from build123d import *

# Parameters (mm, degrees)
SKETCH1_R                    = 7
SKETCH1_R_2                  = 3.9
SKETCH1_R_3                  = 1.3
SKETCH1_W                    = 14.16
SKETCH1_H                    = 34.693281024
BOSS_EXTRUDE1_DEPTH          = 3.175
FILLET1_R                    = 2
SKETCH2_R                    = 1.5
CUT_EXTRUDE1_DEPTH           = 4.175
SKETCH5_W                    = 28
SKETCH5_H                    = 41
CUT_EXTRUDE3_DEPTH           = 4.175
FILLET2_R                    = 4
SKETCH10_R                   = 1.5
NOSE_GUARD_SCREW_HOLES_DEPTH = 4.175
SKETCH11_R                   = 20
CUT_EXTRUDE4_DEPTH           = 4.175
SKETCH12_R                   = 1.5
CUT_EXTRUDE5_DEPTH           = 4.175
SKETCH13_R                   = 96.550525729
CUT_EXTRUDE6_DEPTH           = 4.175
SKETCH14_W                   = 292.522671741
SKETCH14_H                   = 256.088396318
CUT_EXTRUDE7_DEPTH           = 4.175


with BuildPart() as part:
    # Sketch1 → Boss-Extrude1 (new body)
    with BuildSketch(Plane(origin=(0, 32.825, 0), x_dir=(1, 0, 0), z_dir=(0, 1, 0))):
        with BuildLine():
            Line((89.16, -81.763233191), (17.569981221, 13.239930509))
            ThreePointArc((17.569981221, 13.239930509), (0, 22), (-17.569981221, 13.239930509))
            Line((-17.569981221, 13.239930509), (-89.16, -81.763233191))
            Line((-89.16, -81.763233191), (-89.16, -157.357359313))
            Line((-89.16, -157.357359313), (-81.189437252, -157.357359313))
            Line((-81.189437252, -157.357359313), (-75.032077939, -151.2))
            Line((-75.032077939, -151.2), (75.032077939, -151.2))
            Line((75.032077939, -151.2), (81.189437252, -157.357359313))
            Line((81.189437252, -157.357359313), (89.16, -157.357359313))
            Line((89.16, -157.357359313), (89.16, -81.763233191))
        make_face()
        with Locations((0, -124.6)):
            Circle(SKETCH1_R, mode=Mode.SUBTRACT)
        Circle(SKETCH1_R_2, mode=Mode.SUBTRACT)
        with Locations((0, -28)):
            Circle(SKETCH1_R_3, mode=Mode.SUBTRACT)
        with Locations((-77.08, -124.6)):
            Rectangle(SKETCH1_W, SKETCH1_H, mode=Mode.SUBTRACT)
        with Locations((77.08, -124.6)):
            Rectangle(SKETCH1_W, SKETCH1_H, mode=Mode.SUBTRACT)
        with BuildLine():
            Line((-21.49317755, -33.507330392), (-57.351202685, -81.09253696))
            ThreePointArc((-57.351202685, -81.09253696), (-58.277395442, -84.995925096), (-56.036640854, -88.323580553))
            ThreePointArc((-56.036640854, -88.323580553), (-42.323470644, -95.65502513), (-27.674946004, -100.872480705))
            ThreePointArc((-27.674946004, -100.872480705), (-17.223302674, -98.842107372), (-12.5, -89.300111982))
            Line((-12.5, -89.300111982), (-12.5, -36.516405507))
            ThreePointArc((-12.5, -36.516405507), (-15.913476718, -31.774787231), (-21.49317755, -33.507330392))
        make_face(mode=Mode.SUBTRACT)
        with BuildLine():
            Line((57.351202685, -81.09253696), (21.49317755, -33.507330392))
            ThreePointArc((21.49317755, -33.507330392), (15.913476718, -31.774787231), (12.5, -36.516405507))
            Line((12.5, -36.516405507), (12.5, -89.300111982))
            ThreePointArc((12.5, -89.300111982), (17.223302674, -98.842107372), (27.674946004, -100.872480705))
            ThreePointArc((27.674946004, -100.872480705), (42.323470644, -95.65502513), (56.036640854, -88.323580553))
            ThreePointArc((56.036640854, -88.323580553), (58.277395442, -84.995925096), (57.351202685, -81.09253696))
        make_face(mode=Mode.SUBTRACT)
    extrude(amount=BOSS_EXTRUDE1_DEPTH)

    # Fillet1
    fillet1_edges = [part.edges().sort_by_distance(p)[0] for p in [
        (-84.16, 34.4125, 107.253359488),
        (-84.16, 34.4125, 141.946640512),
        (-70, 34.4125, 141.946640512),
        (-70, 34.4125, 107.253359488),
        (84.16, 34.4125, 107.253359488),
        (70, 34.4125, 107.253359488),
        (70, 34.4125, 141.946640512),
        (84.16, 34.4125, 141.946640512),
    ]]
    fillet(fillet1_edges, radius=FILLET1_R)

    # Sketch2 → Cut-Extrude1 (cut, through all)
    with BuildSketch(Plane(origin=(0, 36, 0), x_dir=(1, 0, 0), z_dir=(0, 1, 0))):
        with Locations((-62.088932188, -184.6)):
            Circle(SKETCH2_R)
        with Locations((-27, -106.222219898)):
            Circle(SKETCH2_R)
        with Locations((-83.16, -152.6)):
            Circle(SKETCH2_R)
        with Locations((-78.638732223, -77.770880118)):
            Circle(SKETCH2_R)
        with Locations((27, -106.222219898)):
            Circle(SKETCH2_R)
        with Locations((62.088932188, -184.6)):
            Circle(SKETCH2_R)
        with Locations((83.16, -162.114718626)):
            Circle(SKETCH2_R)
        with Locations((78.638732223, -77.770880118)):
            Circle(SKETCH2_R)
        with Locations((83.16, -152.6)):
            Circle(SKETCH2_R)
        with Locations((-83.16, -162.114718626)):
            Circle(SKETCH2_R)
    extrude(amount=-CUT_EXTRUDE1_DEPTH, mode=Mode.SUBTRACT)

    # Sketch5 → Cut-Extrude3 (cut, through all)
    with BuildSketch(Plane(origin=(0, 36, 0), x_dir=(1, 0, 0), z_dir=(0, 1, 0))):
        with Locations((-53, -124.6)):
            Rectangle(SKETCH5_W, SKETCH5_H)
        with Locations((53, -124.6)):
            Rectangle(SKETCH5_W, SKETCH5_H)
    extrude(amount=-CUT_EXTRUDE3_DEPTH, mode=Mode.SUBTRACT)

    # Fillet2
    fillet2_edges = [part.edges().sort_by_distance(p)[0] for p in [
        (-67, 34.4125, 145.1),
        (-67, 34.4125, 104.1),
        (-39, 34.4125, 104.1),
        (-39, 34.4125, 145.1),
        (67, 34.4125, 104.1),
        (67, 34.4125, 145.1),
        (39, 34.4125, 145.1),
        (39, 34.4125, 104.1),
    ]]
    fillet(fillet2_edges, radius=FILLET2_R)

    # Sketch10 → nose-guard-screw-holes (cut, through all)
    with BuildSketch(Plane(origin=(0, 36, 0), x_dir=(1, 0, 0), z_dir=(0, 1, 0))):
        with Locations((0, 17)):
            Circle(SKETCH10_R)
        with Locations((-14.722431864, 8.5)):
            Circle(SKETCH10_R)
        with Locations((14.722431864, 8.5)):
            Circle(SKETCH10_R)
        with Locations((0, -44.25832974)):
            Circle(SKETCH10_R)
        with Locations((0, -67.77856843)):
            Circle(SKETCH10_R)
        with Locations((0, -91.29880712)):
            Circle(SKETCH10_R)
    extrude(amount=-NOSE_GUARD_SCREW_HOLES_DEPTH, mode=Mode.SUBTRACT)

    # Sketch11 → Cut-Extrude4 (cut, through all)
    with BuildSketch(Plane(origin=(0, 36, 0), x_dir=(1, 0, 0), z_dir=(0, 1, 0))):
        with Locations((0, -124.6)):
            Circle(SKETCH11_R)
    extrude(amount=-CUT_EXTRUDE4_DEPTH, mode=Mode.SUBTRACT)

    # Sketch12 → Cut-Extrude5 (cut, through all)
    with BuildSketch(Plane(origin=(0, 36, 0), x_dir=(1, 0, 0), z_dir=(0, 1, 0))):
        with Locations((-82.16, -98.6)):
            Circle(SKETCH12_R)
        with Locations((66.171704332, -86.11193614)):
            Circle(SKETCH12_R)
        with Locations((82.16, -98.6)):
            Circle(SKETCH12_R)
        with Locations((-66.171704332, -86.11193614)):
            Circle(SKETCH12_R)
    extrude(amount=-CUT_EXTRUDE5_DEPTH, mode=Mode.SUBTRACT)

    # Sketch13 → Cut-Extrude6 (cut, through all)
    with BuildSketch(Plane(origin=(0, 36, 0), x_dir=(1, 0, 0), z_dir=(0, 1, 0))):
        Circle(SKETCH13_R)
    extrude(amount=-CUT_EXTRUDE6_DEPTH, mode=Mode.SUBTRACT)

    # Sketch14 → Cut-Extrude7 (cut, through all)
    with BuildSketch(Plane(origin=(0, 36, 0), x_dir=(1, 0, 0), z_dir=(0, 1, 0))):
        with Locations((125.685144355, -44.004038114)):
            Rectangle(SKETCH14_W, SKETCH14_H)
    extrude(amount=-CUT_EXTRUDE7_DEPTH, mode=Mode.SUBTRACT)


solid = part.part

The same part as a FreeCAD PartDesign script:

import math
import FreeCAD as App
import Part
import Sketcher
Q = App.Units.Quantity


def edges_at(feature, points):
    """Names of the edges that pass closest to the given points."""
    edges = feature.Shape.Edges
    near = lambda p: min(range(len(edges)), key=lambda i: edges[i].distToShape(Part.Vertex(*p))[0])
    return sorted({f"Edge{near(p) + 1}" for p in points})

doc = App.newDocument("Part")
params = doc.addObject("Spreadsheet::Sheet", "Params")
for row, (alias, value) in enumerate([
    ("sketch1_diameter", "14 mm"),
    ("sketch1_radius", "22 mm"),
    ("sketch1_radius2", "5 mm"),
    ("sketch1_radius3", "12 mm"),
    ("sketch1_diameter2", "2.6 mm"),
    ("pad1_length", "3.175 mm"),
    ("fillet_radius", "2 mm"),
    ("sketch2_diameter", "3 mm"),
    ("sketch3_width", "28 mm"),
    ("sketch3_height", "41 mm"),
    ("fillet2_radius", "4 mm"),
    ("sketch4_diameter", "3 mm"),
    ("sketch5_diameter", "40 mm"),
    ("sketch6_diameter", "3 mm"),
], start=1):
    params.set(f"A{row}", alias)
    params.set(f"B{row}", "=" + value)
    params.setAlias(f"B{row}", alias)

body = doc.addObject("PartDesign::Body", "Body")

sketch1 = body.newObject("Sketcher::SketchObject", "Sketch")
sketch1.AttachmentSupport = (doc.getObject("XZ_Plane"), [""])
sketch1.MapMode = "FlatFace"
sketch1.AttachmentOffset = App.Placement(App.Vector(0, 0, -32.825), App.Rotation())
sketch1.addGeometry([
    Part.LineSegment(App.Vector(89.2, 81.8, 0), App.Vector(17.6, -13.2, 0)),
    Part.ArcOfCircle(Part.Circle(App.Vector(0, 0, 0), App.Vector(0, 0, 1), 22), math.radians(-143), math.radians(-37)),
    Part.LineSegment(App.Vector(-17.6, -13.2, 0), App.Vector(-89.2, 81.8, 0)),
    Part.LineSegment(App.Vector(-89.2, 81.8, 0), App.Vector(-89.2, 157.4, 0)),
    Part.LineSegment(App.Vector(-89.2, 157.4, 0), App.Vector(-81.2, 157.4, 0)),
    Part.LineSegment(App.Vector(-81.2, 157.4, 0), App.Vector(-75, 151.2, 0)),
    Part.LineSegment(App.Vector(-75, 151.2, 0), App.Vector(75, 151.2, 0)),
    Part.LineSegment(App.Vector(75, 151.2, 0), App.Vector(81.2, 157.4, 0)),
    Part.LineSegment(App.Vector(81.2, 157.4, 0), App.Vector(89.2, 157.4, 0)),
    Part.LineSegment(App.Vector(89.2, 157.4, 0), App.Vector(89.2, 81.8, 0)),
    Part.LineSegment(App.Vector(-70, 141.9, 0), App.Vector(-84.2, 141.9, 0)),
    Part.LineSegment(App.Vector(-84.2, 141.9, 0), App.Vector(-84.2, 107.3, 0)),
    Part.LineSegment(App.Vector(-84.2, 107.3, 0), App.Vector(-70, 107.3, 0)),
    Part.LineSegment(App.Vector(-70, 107.3, 0), App.Vector(-70, 141.9, 0)),
    Part.Circle(App.Vector(0, 124.6, 0), App.Vector(0, 0, 1), 7),
    Part.LineSegment(App.Vector(84.2, 141.9, 0), App.Vector(70, 141.9, 0)),
    Part.LineSegment(App.Vector(70, 141.9, 0), App.Vector(70, 107.3, 0)),
    Part.LineSegment(App.Vector(70, 107.3, 0), App.Vector(84.2, 107.3, 0)),
    Part.LineSegment(App.Vector(84.2, 107.3, 0), App.Vector(84.2, 141.9, 0)),
    Part.LineSegment(App.Vector(-57.4, 81.1, 0), App.Vector(-21.5, 33.5, 0)),
    Part.ArcOfCircle(Part.Circle(App.Vector(-17.5, 36.5, 0), App.Vector(0, 0, 1), 5), math.radians(-143), math.radians(0)),
    Part.LineSegment(App.Vector(-12.5, 36.5, 0), App.Vector(-12.5, 89.3, 0)),
    Part.ArcOfCircle(Part.Circle(App.Vector(-24.5, 89.3, 0), App.Vector(0, 0, 1), 12), math.radians(0), math.radians(105)),
    Part.ArcOfCircle(Part.Circle(App.Vector(0, 0, 0), App.Vector(0, 0, 1), 104.6), math.radians(105.34), math.radians(122.39)),
    Part.ArcOfCircle(Part.Circle(App.Vector(-53.4, 84.1, 0), App.Vector(0, 0, 1), 5), math.radians(122), math.radians(217)),
    Part.LineSegment(App.Vector(21.5, 33.5, 0), App.Vector(57.4, 81.1, 0)),
    Part.ArcOfCircle(Part.Circle(App.Vector(53.4, 84.1, 0), App.Vector(0, 0, 1), 5), math.radians(-37), math.radians(58)),
    Part.ArcOfCircle(Part.Circle(App.Vector(0, 0, 0), App.Vector(0, 0, 1), 104.6), math.radians(57.61), math.radians(74.66)),
    Part.ArcOfCircle(Part.Circle(App.Vector(24.5, 89.3, 0), App.Vector(0, 0, 1), 12), math.radians(75), math.radians(180)),
    Part.LineSegment(App.Vector(12.5, 89.3, 0), App.Vector(12.5, 36.5, 0)),
    Part.ArcOfCircle(Part.Circle(App.Vector(17.5, 36.5, 0), App.Vector(0, 0, 1), 5), math.radians(180), math.radians(323)),
    Part.Circle(App.Vector(0, 28, 0), App.Vector(0, 0, 1), 1.3),
    Part.Circle(App.Vector(0, 0, 0), App.Vector(0, 0, 1), 3.9),
], False)
sketch1.addConstraint([
    Sketcher.Constraint("Tangent", 0, 2, 1, 2),
    Sketcher.Constraint("Tangent", 1, 1, 2, 1),
    Sketcher.Constraint("Coincident", 2, 2, 3, 1),
    Sketcher.Constraint("Coincident", 3, 2, 4, 1),
    Sketcher.Constraint("Coincident", 4, 2, 5, 1),
    Sketcher.Constraint("Coincident", 5, 2, 6, 1),
    Sketcher.Constraint("Coincident", 6, 2, 7, 1),
    Sketcher.Constraint("Coincident", 7, 2, 8, 1),
    Sketcher.Constraint("Coincident", 8, 2, 9, 1),
    Sketcher.Constraint("Coincident", 9, 2, 0, 1),
    Sketcher.Constraint("Coincident", 10, 2, 11, 1),
    Sketcher.Constraint("Coincident", 11, 2, 12, 1),
    Sketcher.Constraint("Coincident", 12, 2, 13, 1),
    Sketcher.Constraint("Coincident", 13, 2, 10, 1),
    Sketcher.Constraint("Coincident", 15, 2, 16, 1),
    Sketcher.Constraint("Coincident", 16, 2, 17, 1),
    Sketcher.Constraint("Coincident", 17, 2, 18, 1),
    Sketcher.Constraint("Coincident", 18, 2, 15, 1),
    Sketcher.Constraint("Tangent", 19, 2, 20, 1),
    Sketcher.Constraint("Tangent", 20, 2, 21, 1),
    Sketcher.Constraint("Tangent", 21, 2, 22, 1),
    Sketcher.Constraint("Tangent", 22, 2, 23, 1),
    Sketcher.Constraint("Tangent", 23, 2, 24, 1),
    Sketcher.Constraint("Tangent", 24, 2, 19, 1),
    Sketcher.Constraint("Tangent", 25, 2, 26, 1),
    Sketcher.Constraint("Tangent", 26, 2, 27, 1),
    Sketcher.Constraint("Tangent", 27, 2, 28, 1),
    Sketcher.Constraint("Tangent", 28, 2, 29, 1),
    Sketcher.Constraint("Tangent", 29, 2, 30, 1),
    Sketcher.Constraint("Tangent", 30, 2, 25, 1),
    Sketcher.Constraint("Vertical", 3),
    Sketcher.Constraint("Horizontal", 4),
    Sketcher.Constraint("Horizontal", 6),
    Sketcher.Constraint("Horizontal", 8),
    Sketcher.Constraint("Vertical", 9),
    Sketcher.Constraint("Horizontal", 10),
    Sketcher.Constraint("Vertical", 11),
    Sketcher.Constraint("Horizontal", 12),
    Sketcher.Constraint("Vertical", 13),
    Sketcher.Constraint("Horizontal", 15),
    Sketcher.Constraint("Vertical", 16),
    Sketcher.Constraint("Horizontal", 17),
    Sketcher.Constraint("Vertical", 18),
    Sketcher.Constraint("Vertical", 21),
    Sketcher.Constraint("Vertical", 29),
    Sketcher.Constraint("Coincident", 1, 3, -1, 1),
    Sketcher.Constraint("Coincident", 23, 3, -1, 1),
    Sketcher.Constraint("Coincident", 27, 3, -1, 1),
    Sketcher.Constraint("Coincident", 32, 3, -1, 1),
    Sketcher.Constraint("Equal", 20, 24),
    Sketcher.Constraint("Equal", 24, 26),
    Sketcher.Constraint("Equal", 23, 27),
    Sketcher.Constraint("Equal", 22, 28),
    Sketcher.Constraint("Equal", 26, 30),
    Sketcher.Constraint("Symmetric", 20, 3, 30, 3, -2),
    Sketcher.Constraint("Symmetric", 4, 2, 7, 2, -2),
    Sketcher.Constraint("Symmetric", 2, 2, 9, 2, -2),
    Sketcher.Constraint("Symmetric", 13, 2, 15, 2, -2),
    Sketcher.Constraint("Symmetric", 11, 2, 17, 2, -2),
    Sketcher.Constraint("PointOnObject", 14, 3, -2),
    Sketcher.Constraint("PointOnObject", 31, 3, -2),
    Sketcher.Constraint("Perpendicular", 5, 7),
    Sketcher.Constraint("Parallel", 2, 19),
    Sketcher.Constraint("Parallel", 0, 25),
    Sketcher.Constraint("Equal", 5, 7),
    Sketcher.Constraint("Diameter", 14, Q("14 mm")),
    Sketcher.Constraint("Radius", 1, Q("22 mm")),
    Sketcher.Constraint("Radius", 20, Q("5 mm")),
    Sketcher.Constraint("Radius", 22, Q("12 mm")),
    Sketcher.Constraint("Diameter", 31, Q("2.6 mm")),
    Sketcher.Constraint("Diameter", 32, Q("7.8 mm")),
    Sketcher.Constraint("Radius", 23, Q("104.6 mm")),
    Sketcher.Constraint("Angle", 0, Q("-127 deg")),
    Sketcher.Constraint("DistanceY", -1, 1, 31, 3, Q("28 mm")),
    Sketcher.Constraint("DistanceX", 12, 2, -1, 1, Q("70 mm")),
    Sketcher.Constraint("DistanceX", 22, 3, 28, 3, Q("49 mm")),
    Sketcher.Constraint("DistanceX", 3, 2, 10, 2, Q("5 mm")),
    Sketcher.Constraint("DistanceX", 10, 2, 10, 1, Q("14.16 mm")),
    Sketcher.Constraint("DistanceY", -1, 1, 14, 3, Q("124.6 mm")),
    Sketcher.Constraint("DistanceY", -1, 1, 5, 2, Q("151.2 mm")),
    Sketcher.Constraint("DistanceY", 11, 2, 4, 2, Q("50.104 mm")),
    Sketcher.Constraint("DistanceY", 11, 2, 11, 1, Q("34.693281 mm")),
    Sketcher.Constraint("DistanceY", 24, 3, 22, 3, Q("5.1985 mm")),
    Sketcher.Constraint("Distance", 5, Q("8.707821 mm")),
    Sketcher.Constraint("DistanceX", 4, 1, 4, 2, Q("7.970563 mm")),
])
sketch1.setExpression("Constraints[65]", "Params.sketch1_diameter")
sketch1.setExpression("Constraints[66]", "Params.sketch1_radius")
sketch1.setExpression("Constraints[67]", "Params.sketch1_radius2")
sketch1.setExpression("Constraints[68]", "Params.sketch1_radius3")
sketch1.setExpression("Constraints[69]", "Params.sketch1_diameter2")
pad1 = body.newObject("PartDesign::Pad", "Pad")
pad1.Profile = sketch1
pad1.setExpression("Length", "Params.pad1_length")
pad1.Reversed = True
doc.recompute()

fillet = body.newObject("PartDesign::Fillet", "Fillet")
fillet.Base = (pad1, edges_at(pad1, [
    (-84.16, 34.413, 107.253),
    (-84.16, 34.413, 141.947),
    (-70, 34.413, 141.947),
    (-70, 34.413, 107.253),
    (84.16, 34.413, 107.253),
    (70, 34.413, 107.253),
    (70, 34.413, 141.947),
    (84.16, 34.413, 141.947),
]))
fillet.setExpression("Radius", "Params.fillet_radius")

sketch2 = body.newObject("Sketcher::SketchObject", "Sketch001")
sketch2.AttachmentSupport = (doc.getObject("XZ_Plane"), [""])
sketch2.MapMode = "FlatFace"
sketch2.AttachmentOffset = App.Placement(App.Vector(0, 0, -36), App.Rotation())
sketch2.addGeometry([
    Part.Circle(App.Vector(-62.1, 184.6, 0), App.Vector(0, 0, 1), 1.5),
    Part.Circle(App.Vector(-27, 106.2, 0), App.Vector(0, 0, 1), 1.5),
    Part.Circle(App.Vector(-83.2, 152.6, 0), App.Vector(0, 0, 1), 1.5),
    Part.Circle(App.Vector(-78.6, 77.8, 0), App.Vector(0, 0, 1), 1.5),
    Part.Circle(App.Vector(27, 106.2, 0), App.Vector(0, 0, 1), 1.5),
    Part.Circle(App.Vector(62.1, 184.6, 0), App.Vector(0, 0, 1), 1.5),
    Part.Circle(App.Vector(83.2, 162.1, 0), App.Vector(0, 0, 1), 1.5),
    Part.Circle(App.Vector(78.6, 77.8, 0), App.Vector(0, 0, 1), 1.5),
    Part.Circle(App.Vector(83.2, 152.6, 0), App.Vector(0, 0, 1), 1.5),
    Part.Circle(App.Vector(-83.2, 162.1, 0), App.Vector(0, 0, 1), 1.5),
], False)
sketch2.addConstraint([
    Sketcher.Constraint("Equal", 0, 1),
    Sketcher.Constraint("Equal", 1, 2),
    Sketcher.Constraint("Equal", 2, 3),
    Sketcher.Constraint("Equal", 3, 4),
    Sketcher.Constraint("Equal", 4, 5),
    Sketcher.Constraint("Equal", 5, 6),
    Sketcher.Constraint("Equal", 6, 7),
    Sketcher.Constraint("Equal", 7, 8),
    Sketcher.Constraint("Equal", 8, 9),
    Sketcher.Constraint("Symmetric", 1, 3, 4, 3, -2),
    Sketcher.Constraint("Symmetric", 0, 3, 5, 3, -2),
    Sketcher.Constraint("Symmetric", 3, 3, 7, 3, -2),
    Sketcher.Constraint("Symmetric", 2, 3, 8, 3, -2),
    Sketcher.Constraint("Symmetric", 6, 3, 9, 3, -2),
    Sketcher.Constraint("Vertical", 6, 3, 8, 3),
    Sketcher.Constraint("Diameter", 0, Q("3 mm")),
    Sketcher.Constraint("DistanceX", 1, 3, -1, 1, Q("27 mm")),
    Sketcher.Constraint("DistanceY", 2, 3, 0, 3, Q("32 mm")),
    Sketcher.Constraint("DistanceY", -1, 1, 0, 3, Q("184.6 mm")),
    Sketcher.Constraint("DistanceX", 2, 3, -1, 1, Q("83.16 mm")),
    Sketcher.Constraint("DistanceX", 3, 3, 0, 3, Q("16.5498 mm")),
    Sketcher.Constraint("DistanceY", 4, 3, 6, 3, Q("55.892499 mm")),
    Sketcher.Constraint("DistanceY", -1, 1, 1, 3, Q("106.22222 mm")),
    Sketcher.Constraint("DistanceY", -1, 1, 3, 3, Q("77.77088 mm")),
    Sketcher.Constraint("DistanceX", 0, 3, -1, 1, Q("62.088932 mm")),
])
sketch2.setExpression("Constraints[15]", "Params.sketch2_diameter")
pocket1 = body.newObject("PartDesign::Pocket", "Pocket")
pocket1.Profile = sketch2
pocket1.Type = "ThroughAll"
pocket1.Reversed = True

sketch3 = body.newObject("Sketcher::SketchObject", "Sketch002")
sketch3.AttachmentSupport = (doc.getObject("XZ_Plane"), [""])
sketch3.MapMode = "FlatFace"
sketch3.AttachmentOffset = App.Placement(App.Vector(0, 0, -36), App.Rotation())
sketch3.addGeometry([
    Part.LineSegment(App.Vector(-67, 104, 0), App.Vector(-67, 145, 0)),
    Part.LineSegment(App.Vector(-67, 145, 0), App.Vector(-39, 145, 0)),
    Part.LineSegment(App.Vector(-39, 145, 0), App.Vector(-39, 104, 0)),
    Part.LineSegment(App.Vector(-39, 104, 0), App.Vector(-67, 104, 0)),
    Part.LineSegment(App.Vector(39, 104, 0), App.Vector(39, 145, 0)),
    Part.LineSegment(App.Vector(39, 145, 0), App.Vector(67, 145, 0)),
    Part.LineSegment(App.Vector(67, 145, 0), App.Vector(67, 104, 0)),
    Part.LineSegment(App.Vector(67, 104, 0), App.Vector(39, 104, 0)),
], False)
sketch3.addConstraint([
    Sketcher.Constraint("Coincident", 0, 2, 1, 1),
    Sketcher.Constraint("Coincident", 1, 2, 2, 1),
    Sketcher.Constraint("Coincident", 2, 2, 3, 1),
    Sketcher.Constraint("Coincident", 3, 2, 0, 1),
    Sketcher.Constraint("Coincident", 4, 2, 5, 1),
    Sketcher.Constraint("Coincident", 5, 2, 6, 1),
    Sketcher.Constraint("Coincident", 6, 2, 7, 1),
    Sketcher.Constraint("Coincident", 7, 2, 4, 1),
    Sketcher.Constraint("Vertical", 0),
    Sketcher.Constraint("Horizontal", 1),
    Sketcher.Constraint("Vertical", 2),
    Sketcher.Constraint("Horizontal", 3),
    Sketcher.Constraint("Vertical", 4),
    Sketcher.Constraint("Horizontal", 5),
    Sketcher.Constraint("Vertical", 6),
    Sketcher.Constraint("Horizontal", 7),
    Sketcher.Constraint("Symmetric", 1, 2, 4, 2, -2),
    Sketcher.Constraint("Symmetric", 3, 2, 6, 2, -2),
    Sketcher.Constraint("DistanceX", 1, 1, 1, 2, Q("28 mm")),
    Sketcher.Constraint("DistanceY", 0, 1, 0, 2, Q("41 mm")),
    Sketcher.Constraint("DistanceX", 0, 2, -1, 1, Q("67 mm")),
    Sketcher.Constraint("DistanceY", -1, 1, 0, 2, Q("145.1 mm")),
])
sketch3.setExpression("Constraints[18]", "Params.sketch3_width")
sketch3.setExpression("Constraints[19]", "Params.sketch3_height")
pocket2 = body.newObject("PartDesign::Pocket", "Pocket001")
pocket2.Profile = sketch3
pocket2.Type = "ThroughAll"
pocket2.Reversed = True
doc.recompute()

fillet2 = body.newObject("PartDesign::Fillet", "Fillet001")
fillet2.Base = (pocket2, edges_at(pocket2, [
    (-67, 34.413, 145.1),
    (-67, 34.413, 104.1),
    (-39, 34.413, 104.1),
    (-39, 34.413, 145.1),
    (67, 34.413, 104.1),
    (67, 34.413, 145.1),
    (39, 34.413, 145.1),
    (39, 34.413, 104.1),
]))
fillet2.setExpression("Radius", "Params.fillet2_radius")

sketch4 = body.newObject("Sketcher::SketchObject", "Sketch003")
sketch4.AttachmentSupport = (doc.getObject("XZ_Plane"), [""])
sketch4.MapMode = "FlatFace"
sketch4.AttachmentOffset = App.Placement(App.Vector(0, 0, -36), App.Rotation())
sketch4.addGeometry([
    Part.Circle(App.Vector(0, -17, 0), App.Vector(0, 0, 1), 1.5),
    Part.Circle(App.Vector(-14.7, -8.5, 0), App.Vector(0, 0, 1), 1.5),
    Part.Circle(App.Vector(14.7, -8.5, 0), App.Vector(0, 0, 1), 1.5),
    Part.Circle(App.Vector(0, 44.3, 0), App.Vector(0, 0, 1), 1.5),
    Part.Circle(App.Vector(0, 67.8, 0), App.Vector(0, 0, 1), 1.5),
    Part.Circle(App.Vector(0, 91.3, 0), App.Vector(0, 0, 1), 1.5),
], False)
sketch4.addConstraint([
    Sketcher.Constraint("Equal", 0, 1),
    Sketcher.Constraint("Equal", 1, 2),
    Sketcher.Constraint("Equal", 2, 3),
    Sketcher.Constraint("Equal", 3, 4),
    Sketcher.Constraint("Equal", 4, 5),
    Sketcher.Constraint("Symmetric", 1, 3, 2, 3, -2),
    Sketcher.Constraint("PointOnObject", 0, 3, -2),
    Sketcher.Constraint("PointOnObject", 3, 3, -2),
    Sketcher.Constraint("PointOnObject", 4, 3, -2),
    Sketcher.Constraint("PointOnObject", 5, 3, -2),
    Sketcher.Constraint("Diameter", 0, Q("3 mm")),
    Sketcher.Constraint("DistanceY", 0, 3, -1, 1, Q("17 mm")),
    Sketcher.Constraint("DistanceY", 1, 3, -1, 1, Q("8.5 mm")),
    Sketcher.Constraint("DistanceX", 1, 3, -1, 1, Q("14.722432 mm")),
    Sketcher.Constraint("DistanceY", -1, 1, 3, 3, Q("44.25833 mm")),
    Sketcher.Constraint("DistanceY", -1, 1, 4, 3, Q("67.778568 mm")),
    Sketcher.Constraint("DistanceY", 4, 3, 5, 3, Q("23.520239 mm")),
])
sketch4.setExpression("Constraints[10]", "Params.sketch4_diameter")
pocket3 = body.newObject("PartDesign::Pocket", "Pocket002")
pocket3.Profile = sketch4
pocket3.Type = "ThroughAll"
pocket3.Reversed = True

sketch5 = body.newObject("Sketcher::SketchObject", "Sketch004")
sketch5.AttachmentSupport = (doc.getObject("XZ_Plane"), [""])
sketch5.MapMode = "FlatFace"
sketch5.AttachmentOffset = App.Placement(App.Vector(0, 0, -36), App.Rotation())
sketch5.addGeometry(Part.Circle(App.Vector(0, 125, 0), App.Vector(0, 0, 1), 20), False)
sketch5.addConstraint([
    Sketcher.Constraint("PointOnObject", 0, 3, -2),
    Sketcher.Constraint("Diameter", 0, Q("40 mm")),
    Sketcher.Constraint("DistanceY", -1, 1, 0, 3, Q("124.6 mm")),
])
sketch5.setExpression("Constraints[1]", "Params.sketch5_diameter")
pocket4 = body.newObject("PartDesign::Pocket", "Pocket003")
pocket4.Profile = sketch5
pocket4.Type = "ThroughAll"
pocket4.Reversed = True

sketch6 = body.newObject("Sketcher::SketchObject", "Sketch005")
sketch6.AttachmentSupport = (doc.getObject("XZ_Plane"), [""])
sketch6.MapMode = "FlatFace"
sketch6.AttachmentOffset = App.Placement(App.Vector(0, 0, -36), App.Rotation())
sketch6.addGeometry([
    Part.Circle(App.Vector(-82.2, 98.6, 0), App.Vector(0, 0, 1), 1.5),
    Part.Circle(App.Vector(66.2, 86.1, 0), App.Vector(0, 0, 1), 1.5),
    Part.Circle(App.Vector(82.2, 98.6, 0), App.Vector(0, 0, 1), 1.5),
    Part.Circle(App.Vector(-66.2, 86.1, 0), App.Vector(0, 0, 1), 1.5),
], False)
sketch6.addConstraint([
    Sketcher.Constraint("Equal", 0, 1),
    Sketcher.Constraint("Equal", 1, 2),
    Sketcher.Constraint("Equal", 2, 3),
    Sketcher.Constraint("Symmetric", 0, 3, 2, 3, -2),
    Sketcher.Constraint("Symmetric", 1, 3, 3, 3, -2),
    Sketcher.Constraint("Diameter", 0, Q("3 mm")),
    Sketcher.Constraint("DistanceY", -1, 1, 0, 3, Q("98.6 mm")),
    Sketcher.Constraint("DistanceX", 0, 3, -1, 1, Q("82.16 mm")),
    Sketcher.Constraint("DistanceX", 3, 3, 1, 3, Q("132.343409 mm")),
    Sketcher.Constraint("DistanceY", -1, 1, 1, 3, Q("86.111936 mm")),
])
sketch6.setExpression("Constraints[5]", "Params.sketch6_diameter")
pocket5 = body.newObject("PartDesign::Pocket", "Pocket004")
pocket5.Profile = sketch6
pocket5.Type = "ThroughAll"
pocket5.Reversed = True

sketch7 = body.newObject("Sketcher::SketchObject", "Sketch006")
sketch7.AttachmentSupport = (doc.getObject("XZ_Plane"), [""])
sketch7.MapMode = "FlatFace"
sketch7.AttachmentOffset = App.Placement(App.Vector(0, 0, -36), App.Rotation())
sketch7.addGeometry(Part.Circle(App.Vector(0, 0, 0), App.Vector(0, 0, 1), 97), False)
sketch7.addConstraint([
    Sketcher.Constraint("Coincident", 0, 3, -1, 1),
    Sketcher.Constraint("Diameter", 0, Q("193.101051 mm")),
])
pocket6 = body.newObject("PartDesign::Pocket", "Pocket005")
pocket6.Profile = sketch7
pocket6.Type = "ThroughAll"
pocket6.Reversed = True

sketch8 = body.newObject("Sketcher::SketchObject", "Sketch007")
sketch8.AttachmentSupport = (doc.getObject("XZ_Plane"), [""])
sketch8.MapMode = "FlatFace"
sketch8.AttachmentOffset = App.Placement(App.Vector(0, 0, -36), App.Rotation())
sketch8.addGeometry([
    Part.LineSegment(App.Vector(-21, -84, 0), App.Vector(-21, 172, 0)),
    Part.LineSegment(App.Vector(-21, 172, 0), App.Vector(272, 172, 0)),
    Part.LineSegment(App.Vector(272, 172, 0), App.Vector(272, -84, 0)),
    Part.LineSegment(App.Vector(272, -84, 0), App.Vector(-21, -84, 0)),
], False)
sketch8.addConstraint([
    Sketcher.Constraint("Coincident", 0, 2, 1, 1),
    Sketcher.Constraint("Coincident", 1, 2, 2, 1),
    Sketcher.Constraint("Coincident", 2, 2, 3, 1),
    Sketcher.Constraint("Coincident", 3, 2, 0, 1),
    Sketcher.Constraint("Vertical", 0),
    Sketcher.Constraint("Horizontal", 1),
    Sketcher.Constraint("Vertical", 2),
    Sketcher.Constraint("Horizontal", 3),
    Sketcher.Constraint("DistanceX", 1, 1, 1, 2, Q("292.522672 mm")),
    Sketcher.Constraint("DistanceY", 0, 1, 0, 2, Q("256.088396 mm")),
    Sketcher.Constraint("DistanceX", 0, 2, -1, 1, Q("20.576192 mm")),
    Sketcher.Constraint("DistanceY", 2, 2, -1, 1, Q("84.04016 mm")),
])
pocket7 = body.newObject("PartDesign::Pocket", "Pocket006")
pocket7.Profile = sketch8
pocket7.Type = "ThroughAll"
pocket7.Reversed = True

doc.recompute()
